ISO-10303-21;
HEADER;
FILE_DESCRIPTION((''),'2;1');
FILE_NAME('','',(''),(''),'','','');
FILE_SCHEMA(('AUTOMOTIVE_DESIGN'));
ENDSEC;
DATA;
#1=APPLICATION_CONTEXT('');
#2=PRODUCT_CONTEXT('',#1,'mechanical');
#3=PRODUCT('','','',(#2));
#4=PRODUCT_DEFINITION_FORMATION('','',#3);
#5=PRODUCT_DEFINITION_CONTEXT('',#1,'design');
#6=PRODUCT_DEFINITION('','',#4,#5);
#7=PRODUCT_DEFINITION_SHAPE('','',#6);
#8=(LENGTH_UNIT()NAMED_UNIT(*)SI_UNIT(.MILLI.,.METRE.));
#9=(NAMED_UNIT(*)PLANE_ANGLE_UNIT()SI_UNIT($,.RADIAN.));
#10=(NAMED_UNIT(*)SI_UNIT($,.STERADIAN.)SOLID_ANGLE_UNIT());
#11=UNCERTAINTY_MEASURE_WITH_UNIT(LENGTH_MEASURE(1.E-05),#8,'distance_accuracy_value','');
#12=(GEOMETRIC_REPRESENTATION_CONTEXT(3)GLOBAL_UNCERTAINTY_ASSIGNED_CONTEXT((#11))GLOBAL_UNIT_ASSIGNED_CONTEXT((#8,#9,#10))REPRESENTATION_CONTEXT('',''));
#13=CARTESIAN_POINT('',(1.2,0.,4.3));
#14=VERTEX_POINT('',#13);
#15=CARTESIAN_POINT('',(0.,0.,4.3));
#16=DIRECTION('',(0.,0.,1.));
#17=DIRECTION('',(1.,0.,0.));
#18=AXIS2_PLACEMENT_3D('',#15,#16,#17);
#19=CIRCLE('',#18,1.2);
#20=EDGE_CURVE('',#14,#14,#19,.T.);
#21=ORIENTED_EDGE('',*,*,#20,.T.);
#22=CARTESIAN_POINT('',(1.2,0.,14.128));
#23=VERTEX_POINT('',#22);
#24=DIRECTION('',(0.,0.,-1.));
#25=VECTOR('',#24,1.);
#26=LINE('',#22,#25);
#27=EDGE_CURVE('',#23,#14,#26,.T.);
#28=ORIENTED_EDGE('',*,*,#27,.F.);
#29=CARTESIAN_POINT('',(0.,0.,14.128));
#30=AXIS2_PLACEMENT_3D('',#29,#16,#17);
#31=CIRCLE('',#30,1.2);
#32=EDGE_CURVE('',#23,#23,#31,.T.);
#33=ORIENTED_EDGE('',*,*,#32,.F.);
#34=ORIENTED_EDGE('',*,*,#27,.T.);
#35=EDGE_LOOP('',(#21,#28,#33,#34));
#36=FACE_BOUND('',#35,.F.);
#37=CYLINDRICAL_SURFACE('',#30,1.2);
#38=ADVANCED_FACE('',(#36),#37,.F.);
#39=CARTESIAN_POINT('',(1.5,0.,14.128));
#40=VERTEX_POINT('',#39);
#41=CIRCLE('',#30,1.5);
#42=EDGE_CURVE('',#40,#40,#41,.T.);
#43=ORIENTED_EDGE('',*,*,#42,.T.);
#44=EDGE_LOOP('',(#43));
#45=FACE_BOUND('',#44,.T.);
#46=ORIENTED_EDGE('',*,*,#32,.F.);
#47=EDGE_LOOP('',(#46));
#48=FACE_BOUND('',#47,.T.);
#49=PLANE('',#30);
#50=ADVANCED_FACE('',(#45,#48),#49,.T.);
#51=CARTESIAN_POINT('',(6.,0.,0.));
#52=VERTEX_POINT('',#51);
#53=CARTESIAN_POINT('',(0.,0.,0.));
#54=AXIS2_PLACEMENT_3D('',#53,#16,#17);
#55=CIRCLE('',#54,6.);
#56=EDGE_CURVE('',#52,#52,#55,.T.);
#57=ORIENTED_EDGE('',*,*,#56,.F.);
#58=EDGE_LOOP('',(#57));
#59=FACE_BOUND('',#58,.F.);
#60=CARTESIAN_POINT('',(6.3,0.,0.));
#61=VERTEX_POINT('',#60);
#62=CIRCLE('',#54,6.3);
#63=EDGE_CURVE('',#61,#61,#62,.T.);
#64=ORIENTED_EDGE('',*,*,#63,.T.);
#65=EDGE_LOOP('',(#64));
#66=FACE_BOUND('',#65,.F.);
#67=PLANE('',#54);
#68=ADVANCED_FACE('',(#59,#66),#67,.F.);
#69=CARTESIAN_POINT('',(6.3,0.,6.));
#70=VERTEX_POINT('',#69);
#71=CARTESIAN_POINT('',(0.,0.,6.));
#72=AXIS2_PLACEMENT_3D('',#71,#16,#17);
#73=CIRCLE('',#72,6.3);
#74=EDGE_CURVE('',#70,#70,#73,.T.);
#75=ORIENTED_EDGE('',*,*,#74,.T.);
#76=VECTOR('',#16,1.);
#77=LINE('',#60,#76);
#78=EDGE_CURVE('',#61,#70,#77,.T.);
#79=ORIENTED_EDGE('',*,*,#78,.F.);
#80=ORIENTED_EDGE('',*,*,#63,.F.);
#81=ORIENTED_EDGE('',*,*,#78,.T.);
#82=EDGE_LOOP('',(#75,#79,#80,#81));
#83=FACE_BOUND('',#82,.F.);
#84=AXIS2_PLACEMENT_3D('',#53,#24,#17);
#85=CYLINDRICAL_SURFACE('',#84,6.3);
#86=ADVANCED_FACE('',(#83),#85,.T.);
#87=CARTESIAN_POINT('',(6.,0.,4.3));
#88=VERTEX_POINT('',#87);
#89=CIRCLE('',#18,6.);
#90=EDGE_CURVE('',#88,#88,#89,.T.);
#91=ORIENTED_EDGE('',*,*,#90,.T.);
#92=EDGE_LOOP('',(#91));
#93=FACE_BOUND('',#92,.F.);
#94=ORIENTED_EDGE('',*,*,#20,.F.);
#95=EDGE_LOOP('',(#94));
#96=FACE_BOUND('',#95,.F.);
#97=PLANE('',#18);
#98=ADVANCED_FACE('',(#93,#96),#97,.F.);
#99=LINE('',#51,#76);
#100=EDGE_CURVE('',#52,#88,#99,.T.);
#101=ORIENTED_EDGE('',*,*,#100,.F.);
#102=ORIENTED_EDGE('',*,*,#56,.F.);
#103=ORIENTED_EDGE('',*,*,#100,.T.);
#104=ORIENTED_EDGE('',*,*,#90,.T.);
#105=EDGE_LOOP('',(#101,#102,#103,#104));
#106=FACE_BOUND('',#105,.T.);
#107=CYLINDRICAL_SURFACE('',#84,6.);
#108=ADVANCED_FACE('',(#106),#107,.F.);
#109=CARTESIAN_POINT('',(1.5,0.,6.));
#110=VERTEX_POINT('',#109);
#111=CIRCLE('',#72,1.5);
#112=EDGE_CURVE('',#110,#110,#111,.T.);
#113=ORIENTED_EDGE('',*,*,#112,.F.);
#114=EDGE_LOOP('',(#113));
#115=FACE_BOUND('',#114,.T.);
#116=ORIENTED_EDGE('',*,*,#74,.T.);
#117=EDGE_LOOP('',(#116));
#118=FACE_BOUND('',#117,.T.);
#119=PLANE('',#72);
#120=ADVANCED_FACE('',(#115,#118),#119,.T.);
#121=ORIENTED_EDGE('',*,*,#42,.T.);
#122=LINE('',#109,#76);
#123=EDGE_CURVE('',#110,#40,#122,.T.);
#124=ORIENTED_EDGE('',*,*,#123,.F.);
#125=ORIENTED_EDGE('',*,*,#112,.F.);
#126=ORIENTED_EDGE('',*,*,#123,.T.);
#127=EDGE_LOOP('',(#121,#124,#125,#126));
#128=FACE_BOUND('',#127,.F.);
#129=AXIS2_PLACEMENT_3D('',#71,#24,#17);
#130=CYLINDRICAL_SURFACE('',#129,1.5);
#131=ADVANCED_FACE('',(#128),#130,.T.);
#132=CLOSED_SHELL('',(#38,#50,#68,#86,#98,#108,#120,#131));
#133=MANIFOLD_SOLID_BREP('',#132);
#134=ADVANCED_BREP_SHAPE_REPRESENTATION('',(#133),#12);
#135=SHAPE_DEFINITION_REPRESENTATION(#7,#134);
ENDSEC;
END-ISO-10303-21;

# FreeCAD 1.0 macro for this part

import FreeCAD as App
import Part
import Sketcher
from FreeCAD import Vector

doc = App.newDocument("Part")
body = doc.addObject("PartDesign::Body", "Body")

sketch1 = doc.addObject("Sketcher::SketchObject", "Sketch")
body.addObject(sketch1)
sketch1.AttachmentSupport = (doc.XY_Plane, [""])
sketch1.MapMode = "FlatFace"
sketch1.addGeometry(Part.Circle(Vector(0, 0, 0), Vector(0, 0, 1), 6), False)
sketch1.addConstraint(Sketcher.Constraint("Coincident", 0, 3, -1, 1))
sketch1.addConstraint(Sketcher.Constraint("Diameter", 0, 12.6))
pad1 = doc.addObject("PartDesign::Pad", "Pad")
body.addObject(pad1)
pad1.Profile = sketch1
pad1.Length = 6

sketch2 = doc.addObject("Sketcher::SketchObject", "Sketch001")
body.addObject(sketch2)
sketch2.AttachmentSupport = (doc.XY_Plane, [""])
sketch2.MapMode = "FlatFace"
sketch2.AttachmentOffset = App.Placement(Vector(0, 0, 6), App.Rotation())
sketch2.addGeometry(Part.Circle(Vector(0, 0, 0), Vector(0, 0, 1), 1.5), False)
sketch2.addConstraint(Sketcher.Constraint("Coincident", 0, 3, -1, 1))
sketch2.addConstraint(Sketcher.Constraint("Diameter", 0, 3.0))
pad2 = doc.addObject("PartDesign::Pad", "Pad001")
body.addObject(pad2)
pad2.Profile = sketch2
pad2.Length = 8.128

sketch3 = doc.addObject("Sketcher::SketchObject", "Sketch002")
body.addObject(sketch3)
sketch3.AttachmentSupport = (doc.XY_Plane, [""])
sketch3.MapMode = "FlatFace"
sketch3.AttachmentOffset = App.Placement(Vector(0, 0, 14.128), App.Rotation())
sketch3.addGeometry(Part.Circle(Vector(0, 0, 0), Vector(0, 0, 1), 1.2), False)
sketch3.addConstraint(Sketcher.Constraint("Coincident", 0, 3, -1, 1))
sketch3.addConstraint(Sketcher.Constraint("Diameter", 0, 2.4))
pocket1 = doc.addObject("PartDesign::Pocket", "Pocket")
body.addObject(pocket1)
pocket1.Profile = sketch3
pocket1.Length = 25.4

sketch4 = doc.addObject("Sketcher::SketchObject", "Sketch003")
body.addObject(sketch4)
sketch4.AttachmentSupport = (doc.XY_Plane, [""])
sketch4.MapMode = "FlatFace"
sketch4.addGeometry(Part.Circle(Vector(0, 0, 0), Vector(0, 0, 1), 6), False)
sketch4.addConstraint(Sketcher.Constraint("Coincident", 0, 3, -1, 1))
sketch4.addConstraint(Sketcher.Constraint("Diameter", 0, 12.0))
pocket2 = doc.addObject("PartDesign::Pocket", "Pocket001")
body.addObject(pocket2)
pocket2.Profile = sketch4
pocket2.Length = 4.3
pocket2.Reversed = True

doc.recompute()
